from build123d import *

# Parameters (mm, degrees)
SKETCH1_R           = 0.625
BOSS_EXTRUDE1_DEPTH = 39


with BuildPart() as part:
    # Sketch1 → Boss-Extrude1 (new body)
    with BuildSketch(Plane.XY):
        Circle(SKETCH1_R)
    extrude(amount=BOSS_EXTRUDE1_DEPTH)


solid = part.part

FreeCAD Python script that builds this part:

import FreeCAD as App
import Part
import Sketcher
from FreeCAD import Vector

doc = App.newDocument("Part")
body = doc.addObject("PartDesign::Body", "Body")

# Sketch on XY plane
sketch1 = body.newObject("Sketcher::SketchObject", "Sketch")
sketch1.AttachmentSupport = (doc.getObject("XY_Plane"), [""])
sketch1.MapMode = "FlatFace"
sketch1.addGeometry(Part.Circle(Vector(0, 0, 0), Vector(0, 0, 1), 0.6), False)
sketch1.addConstraint([
    Sketcher.Constraint("Coincident", 0, 3, -1, 1),
    Sketcher.Constraint("Diameter", 0, 1.25),
])
pad1 = body.newObject("PartDesign::Pad", "Pad")
pad1.Profile = sketch1
pad1.Length = 39

doc.recompute()
